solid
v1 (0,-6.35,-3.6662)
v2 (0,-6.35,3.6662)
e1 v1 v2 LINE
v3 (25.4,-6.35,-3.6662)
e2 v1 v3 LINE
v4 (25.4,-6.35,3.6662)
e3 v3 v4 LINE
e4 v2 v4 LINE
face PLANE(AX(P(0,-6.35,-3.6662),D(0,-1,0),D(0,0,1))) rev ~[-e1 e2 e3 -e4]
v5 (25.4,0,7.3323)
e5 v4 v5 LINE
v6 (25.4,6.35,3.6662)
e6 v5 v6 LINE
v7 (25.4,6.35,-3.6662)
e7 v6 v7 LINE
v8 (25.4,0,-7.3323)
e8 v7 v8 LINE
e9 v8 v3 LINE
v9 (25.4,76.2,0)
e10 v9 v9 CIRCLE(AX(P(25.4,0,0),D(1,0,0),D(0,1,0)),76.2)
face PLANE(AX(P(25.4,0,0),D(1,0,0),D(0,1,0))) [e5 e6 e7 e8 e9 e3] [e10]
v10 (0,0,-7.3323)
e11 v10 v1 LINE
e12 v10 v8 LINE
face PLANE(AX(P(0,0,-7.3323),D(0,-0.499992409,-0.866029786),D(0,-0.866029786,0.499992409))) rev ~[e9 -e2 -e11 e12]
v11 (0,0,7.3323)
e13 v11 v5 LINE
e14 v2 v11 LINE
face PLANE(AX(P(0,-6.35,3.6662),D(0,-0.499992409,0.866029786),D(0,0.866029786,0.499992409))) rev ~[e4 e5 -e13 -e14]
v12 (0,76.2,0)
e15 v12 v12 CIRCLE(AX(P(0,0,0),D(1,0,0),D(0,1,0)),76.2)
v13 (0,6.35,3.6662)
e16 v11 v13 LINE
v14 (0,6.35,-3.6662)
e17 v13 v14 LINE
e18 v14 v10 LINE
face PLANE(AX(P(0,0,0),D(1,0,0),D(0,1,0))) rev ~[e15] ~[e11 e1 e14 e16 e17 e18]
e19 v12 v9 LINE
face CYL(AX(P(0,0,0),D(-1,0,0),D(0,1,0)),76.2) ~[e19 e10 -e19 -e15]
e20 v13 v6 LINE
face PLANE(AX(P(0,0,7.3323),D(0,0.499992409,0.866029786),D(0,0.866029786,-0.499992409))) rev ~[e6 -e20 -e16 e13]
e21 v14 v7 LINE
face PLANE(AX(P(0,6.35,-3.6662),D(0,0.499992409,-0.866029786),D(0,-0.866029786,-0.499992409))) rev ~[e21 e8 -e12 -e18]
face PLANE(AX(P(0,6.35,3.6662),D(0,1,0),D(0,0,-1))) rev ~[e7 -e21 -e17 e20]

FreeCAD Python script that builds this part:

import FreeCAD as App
import Part
import Sketcher
Q = App.Units.Quantity

doc = App.newDocument("Part")
body = doc.addObject("PartDesign::Body", "Body")

sketch1 = body.newObject("Sketcher::SketchObject", "Sketch")
sketch1.AttachmentSupport = (doc.getObject("YZ_Plane"), [""])
sketch1.MapMode = "FlatFace"
sketch1.addGeometry([
    Part.Circle(App.Vector(0, 0, 0), App.Vector(0, 0, 1), 76),
    Part.LineSegment(App.Vector(-6, 4, 0), App.Vector(0, 7, 0)),
    Part.LineSegment(App.Vector(0, 7, 0), App.Vector(6, 4, 0)),
    Part.LineSegment(App.Vector(6, 4, 0), App.Vector(6, -4, 0)),
    Part.LineSegment(App.Vector(6, -4, 0), App.Vector(0, -7, 0)),
    Part.LineSegment(App.Vector(0, -7, 0), App.Vector(-6, -4, 0)),
    Part.LineSegment(App.Vector(-6, -4, 0), App.Vector(-6, 4, 0)),
], False)
sketch1.addConstraint([
    Sketcher.Constraint("Coincident", 1, 2, 2, 1),
    Sketcher.Constraint("Coincident", 2, 2, 3, 1),
    Sketcher.Constraint("Coincident", 3, 2, 4, 1),
    Sketcher.Constraint("Coincident", 4, 2, 5, 1),
    Sketcher.Constraint("Coincident", 5, 2, 6, 1),
    Sketcher.Constraint("Coincident", 6, 2, 1, 1),
    Sketcher.Constraint("Vertical", 3),
    Sketcher.Constraint("Vertical", 6),
    Sketcher.Constraint("Coincident", 0, 3, -1, 1),
    Sketcher.Constraint("Symmetric", 1, 2, 4, 2, -1, 1),
    Sketcher.Constraint("Symmetric", 2, 2, 5, 2, -1, 1),
    Sketcher.Constraint("PointOnObject", 1, 2, -2),
    Sketcher.Constraint("Parallel", 1, 4),
    Sketcher.Constraint("Horizontal", 3, 2, 5, 2),
    Sketcher.Constraint("Diameter", 0, Q("6 in")),
    Sketcher.Constraint("DistanceX", 5, 2, 3, 2, Q("0.5 in")),
    Sketcher.Constraint("Angle", 1, Q("29.9995 deg")),
    Sketcher.Constraint("DistanceY", 3, 2, 1, 2, Q("0.433 in")),
])
pad1 = body.newObject("PartDesign::Pad", "Pad")
pad1.Profile = sketch1
pad1.Length = Q("1 in")

doc.recompute()
